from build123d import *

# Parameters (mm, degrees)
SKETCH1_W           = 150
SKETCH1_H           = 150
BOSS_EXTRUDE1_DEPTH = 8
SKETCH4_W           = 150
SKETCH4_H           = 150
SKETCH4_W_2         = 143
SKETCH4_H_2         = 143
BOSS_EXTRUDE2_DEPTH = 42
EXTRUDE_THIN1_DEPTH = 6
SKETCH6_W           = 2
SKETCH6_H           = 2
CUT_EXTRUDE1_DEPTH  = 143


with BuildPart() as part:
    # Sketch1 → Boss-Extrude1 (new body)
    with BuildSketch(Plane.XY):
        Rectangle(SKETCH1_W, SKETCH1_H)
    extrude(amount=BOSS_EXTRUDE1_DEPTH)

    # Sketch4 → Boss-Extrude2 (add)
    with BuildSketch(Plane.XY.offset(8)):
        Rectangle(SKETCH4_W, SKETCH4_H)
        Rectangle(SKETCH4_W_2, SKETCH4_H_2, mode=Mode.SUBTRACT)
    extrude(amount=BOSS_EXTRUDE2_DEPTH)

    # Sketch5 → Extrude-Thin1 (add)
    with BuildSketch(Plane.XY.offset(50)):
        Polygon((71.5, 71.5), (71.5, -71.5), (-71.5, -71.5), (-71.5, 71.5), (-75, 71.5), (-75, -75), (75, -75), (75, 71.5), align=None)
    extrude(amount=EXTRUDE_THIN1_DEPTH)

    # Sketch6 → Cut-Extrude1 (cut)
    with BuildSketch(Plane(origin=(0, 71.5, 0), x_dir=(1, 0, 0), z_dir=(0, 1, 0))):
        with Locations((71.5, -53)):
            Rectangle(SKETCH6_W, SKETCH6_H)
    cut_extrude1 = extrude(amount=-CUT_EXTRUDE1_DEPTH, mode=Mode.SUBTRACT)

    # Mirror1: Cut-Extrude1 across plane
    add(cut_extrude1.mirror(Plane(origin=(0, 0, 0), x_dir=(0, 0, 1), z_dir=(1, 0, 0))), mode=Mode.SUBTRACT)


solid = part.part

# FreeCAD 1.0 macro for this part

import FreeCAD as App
import Part
import Sketcher


def add_polygon(sketch, points):
    """Adds a closed chain of lines whose ends are joined by coincident constraints."""
    first, n = sketch.GeometryCount, len(points)
    for a, b in zip(points, points[1:] + points[:1]):
        sketch.addGeometry(Part.LineSegment(App.Vector(*a, 0), App.Vector(*b, 0)), False)
    for i in range(n):
        sketch.addConstraint(Sketcher.Constraint("Coincident", first + i, 2, first + (i + 1) % n, 1))

doc = App.newDocument("Part")
body = doc.addObject("PartDesign::Body", "Body")

# Sketch on XY plane
sketch1 = body.newObject("Sketcher::SketchObject", "Sketch")
sketch1.AttachmentSupport = (doc.getObject("XY_Plane"), [""])
sketch1.MapMode = "FlatFace"
add_polygon(sketch1, [(-75, 75), (-75, -75), (75, -75), (75, 75)])  # lines 0-3
sketch1.addConstraint([
    Sketcher.Constraint("Vertical", 0),
    Sketcher.Constraint("Horizontal", 1),
    Sketcher.Constraint("Vertical", 2),
    Sketcher.Constraint("Horizontal", 3),
    Sketcher.Constraint("Symmetric", 0, 2, 2, 2, -1, 1),
    Sketcher.Constraint("Equal", 3, 0),
    Sketcher.Constraint("DistanceX", 1, 1, 1, 2, 150.0),
])
pad1 = body.newObject("PartDesign::Pad", "Pad")
pad1.Profile = sketch1
pad1.Length = 8

# Sketch on XY plane
sketch2 = body.newObject("Sketcher::SketchObject", "Sketch001")
sketch2.AttachmentSupport = (doc.getObject("XY_Plane"), [""])
sketch2.MapMode = "FlatFace"
sketch2.AttachmentOffset = App.Placement(App.Vector(0, 0, 8), App.Rotation())
add_polygon(sketch2, [(-75, 75), (-75, -75), (75, -75), (75, 75)])  # lines 0-3
add_polygon(sketch2, [(71.5, -71.5), (-71.5, -71.5), (-71.5, 71.5), (71.5, 71.5)])  # lines 4-7
sketch2.addConstraint([
    Sketcher.Constraint("Vertical", 0),
    Sketcher.Constraint("Horizontal", 1),
    Sketcher.Constraint("Vertical", 2),
    Sketcher.Constraint("Horizontal", 3),
    Sketcher.Constraint("Horizontal", 4),
    Sketcher.Constraint("Vertical", 5),
    Sketcher.Constraint("Horizontal", 6),
    Sketcher.Constraint("Vertical", 7),
    Sketcher.Constraint("Symmetric", 0, 2, 2, 2, -1, 1),
    Sketcher.Constraint("Symmetric", 4, 2, 6, 2, -1, 1),
    Sketcher.Constraint("Equal", 3, 0),
    Sketcher.Constraint("Equal", 6, 5),
    Sketcher.Constraint("DistanceX", 1, 1, 1, 2, 150.0),
    Sketcher.Constraint("DistanceX", 4, 2, 4, 1, 143.0),
])
pad2 = body.newObject("PartDesign::Pad", "Pad001")
pad2.Profile = sketch2
pad2.Length = 42

# Sketch on XY plane
sketch3 = body.newObject("Sketcher::SketchObject", "Sketch002")
sketch3.AttachmentSupport = (doc.getObject("XY_Plane"), [""])
sketch3.MapMode = "FlatFace"
sketch3.AttachmentOffset = App.Placement(App.Vector(0, 0, 50), App.Rotation())
add_polygon(sketch3, [(71.5, 71.5), (71.5, -71.5), (-71.5, -71.5), (-71.5, 71.5), (-75, 71.5), (-75, -75), (75, -75), (75, 71.5)])  # lines 0-7
sketch3.addConstraint([
    Sketcher.Constraint("Vertical", 0),
    Sketcher.Constraint("Horizontal", 1),
    Sketcher.Constraint("Vertical", 2),
    Sketcher.Constraint("Horizontal", 3),
    Sketcher.Constraint("Vertical", 4),
    Sketcher.Constraint("Horizontal", 5),
    Sketcher.Constraint("Vertical", 6),
    Sketcher.Constraint("Horizontal", 7),
    Sketcher.Constraint("Symmetric", 0, 2, 2, 2, -1, 1),
    Sketcher.Constraint("Symmetric", 3, 2, 6, 2, -2),
    Sketcher.Constraint("Equal", 1, 0),
    Sketcher.Constraint("DistanceX", 1, 2, 1, 1, 143.0),
    Sketcher.Constraint("DistanceX", 5, 1, 5, 2, 150.0),
    Sketcher.Constraint("DistanceY", 4, 2, 4, 1, 146.5),
])
pad3 = body.newObject("PartDesign::Pad", "Pad002")
pad3.Profile = sketch3
pad3.Length = 6

# Sketch on XZ plane
sketch4 = body.newObject("Sketcher::SketchObject", "Sketch003")
sketch4.AttachmentSupport = (doc.getObject("XZ_Plane"), [""])
sketch4.MapMode = "FlatFace"
sketch4.AttachmentOffset = App.Placement(App.Vector(0, 0, -71.5), App.Rotation())
add_polygon(sketch4, [(70.5, 52), (70.5, 54), (72.5, 54), (72.5, 52)])  # lines 0-3
sketch4.addConstraint([
    Sketcher.Constraint("Vertical", 0),
    Sketcher.Constraint("Horizontal", 1),
    Sketcher.Constraint("Vertical", 2),
    Sketcher.Constraint("Horizontal", 3),
    Sketcher.Constraint("Equal", 3, 0),
    Sketcher.Constraint("DistanceX", 1, 1, 1, 2, 2.0),
    Sketcher.Constraint("DistanceY", -1, 1, 0, 2, 54.0),
    Sketcher.Constraint("DistanceX", -1, 1, 0, 2, 70.5),
])
pocket1 = body.newObject("PartDesign::Pocket", "Pocket")
pocket1.Profile = sketch4
pocket1.Length = 143
pocket1.Reversed = True
doc.recompute()

mirrored = body.newObject("PartDesign::Mirrored", "Mirrored")
mirrored.Originals = [pocket1]
mirrored.MirrorPlane = (doc.getObject("YZ_Plane"), [""])
body.Tip = mirrored

doc.recompute()
